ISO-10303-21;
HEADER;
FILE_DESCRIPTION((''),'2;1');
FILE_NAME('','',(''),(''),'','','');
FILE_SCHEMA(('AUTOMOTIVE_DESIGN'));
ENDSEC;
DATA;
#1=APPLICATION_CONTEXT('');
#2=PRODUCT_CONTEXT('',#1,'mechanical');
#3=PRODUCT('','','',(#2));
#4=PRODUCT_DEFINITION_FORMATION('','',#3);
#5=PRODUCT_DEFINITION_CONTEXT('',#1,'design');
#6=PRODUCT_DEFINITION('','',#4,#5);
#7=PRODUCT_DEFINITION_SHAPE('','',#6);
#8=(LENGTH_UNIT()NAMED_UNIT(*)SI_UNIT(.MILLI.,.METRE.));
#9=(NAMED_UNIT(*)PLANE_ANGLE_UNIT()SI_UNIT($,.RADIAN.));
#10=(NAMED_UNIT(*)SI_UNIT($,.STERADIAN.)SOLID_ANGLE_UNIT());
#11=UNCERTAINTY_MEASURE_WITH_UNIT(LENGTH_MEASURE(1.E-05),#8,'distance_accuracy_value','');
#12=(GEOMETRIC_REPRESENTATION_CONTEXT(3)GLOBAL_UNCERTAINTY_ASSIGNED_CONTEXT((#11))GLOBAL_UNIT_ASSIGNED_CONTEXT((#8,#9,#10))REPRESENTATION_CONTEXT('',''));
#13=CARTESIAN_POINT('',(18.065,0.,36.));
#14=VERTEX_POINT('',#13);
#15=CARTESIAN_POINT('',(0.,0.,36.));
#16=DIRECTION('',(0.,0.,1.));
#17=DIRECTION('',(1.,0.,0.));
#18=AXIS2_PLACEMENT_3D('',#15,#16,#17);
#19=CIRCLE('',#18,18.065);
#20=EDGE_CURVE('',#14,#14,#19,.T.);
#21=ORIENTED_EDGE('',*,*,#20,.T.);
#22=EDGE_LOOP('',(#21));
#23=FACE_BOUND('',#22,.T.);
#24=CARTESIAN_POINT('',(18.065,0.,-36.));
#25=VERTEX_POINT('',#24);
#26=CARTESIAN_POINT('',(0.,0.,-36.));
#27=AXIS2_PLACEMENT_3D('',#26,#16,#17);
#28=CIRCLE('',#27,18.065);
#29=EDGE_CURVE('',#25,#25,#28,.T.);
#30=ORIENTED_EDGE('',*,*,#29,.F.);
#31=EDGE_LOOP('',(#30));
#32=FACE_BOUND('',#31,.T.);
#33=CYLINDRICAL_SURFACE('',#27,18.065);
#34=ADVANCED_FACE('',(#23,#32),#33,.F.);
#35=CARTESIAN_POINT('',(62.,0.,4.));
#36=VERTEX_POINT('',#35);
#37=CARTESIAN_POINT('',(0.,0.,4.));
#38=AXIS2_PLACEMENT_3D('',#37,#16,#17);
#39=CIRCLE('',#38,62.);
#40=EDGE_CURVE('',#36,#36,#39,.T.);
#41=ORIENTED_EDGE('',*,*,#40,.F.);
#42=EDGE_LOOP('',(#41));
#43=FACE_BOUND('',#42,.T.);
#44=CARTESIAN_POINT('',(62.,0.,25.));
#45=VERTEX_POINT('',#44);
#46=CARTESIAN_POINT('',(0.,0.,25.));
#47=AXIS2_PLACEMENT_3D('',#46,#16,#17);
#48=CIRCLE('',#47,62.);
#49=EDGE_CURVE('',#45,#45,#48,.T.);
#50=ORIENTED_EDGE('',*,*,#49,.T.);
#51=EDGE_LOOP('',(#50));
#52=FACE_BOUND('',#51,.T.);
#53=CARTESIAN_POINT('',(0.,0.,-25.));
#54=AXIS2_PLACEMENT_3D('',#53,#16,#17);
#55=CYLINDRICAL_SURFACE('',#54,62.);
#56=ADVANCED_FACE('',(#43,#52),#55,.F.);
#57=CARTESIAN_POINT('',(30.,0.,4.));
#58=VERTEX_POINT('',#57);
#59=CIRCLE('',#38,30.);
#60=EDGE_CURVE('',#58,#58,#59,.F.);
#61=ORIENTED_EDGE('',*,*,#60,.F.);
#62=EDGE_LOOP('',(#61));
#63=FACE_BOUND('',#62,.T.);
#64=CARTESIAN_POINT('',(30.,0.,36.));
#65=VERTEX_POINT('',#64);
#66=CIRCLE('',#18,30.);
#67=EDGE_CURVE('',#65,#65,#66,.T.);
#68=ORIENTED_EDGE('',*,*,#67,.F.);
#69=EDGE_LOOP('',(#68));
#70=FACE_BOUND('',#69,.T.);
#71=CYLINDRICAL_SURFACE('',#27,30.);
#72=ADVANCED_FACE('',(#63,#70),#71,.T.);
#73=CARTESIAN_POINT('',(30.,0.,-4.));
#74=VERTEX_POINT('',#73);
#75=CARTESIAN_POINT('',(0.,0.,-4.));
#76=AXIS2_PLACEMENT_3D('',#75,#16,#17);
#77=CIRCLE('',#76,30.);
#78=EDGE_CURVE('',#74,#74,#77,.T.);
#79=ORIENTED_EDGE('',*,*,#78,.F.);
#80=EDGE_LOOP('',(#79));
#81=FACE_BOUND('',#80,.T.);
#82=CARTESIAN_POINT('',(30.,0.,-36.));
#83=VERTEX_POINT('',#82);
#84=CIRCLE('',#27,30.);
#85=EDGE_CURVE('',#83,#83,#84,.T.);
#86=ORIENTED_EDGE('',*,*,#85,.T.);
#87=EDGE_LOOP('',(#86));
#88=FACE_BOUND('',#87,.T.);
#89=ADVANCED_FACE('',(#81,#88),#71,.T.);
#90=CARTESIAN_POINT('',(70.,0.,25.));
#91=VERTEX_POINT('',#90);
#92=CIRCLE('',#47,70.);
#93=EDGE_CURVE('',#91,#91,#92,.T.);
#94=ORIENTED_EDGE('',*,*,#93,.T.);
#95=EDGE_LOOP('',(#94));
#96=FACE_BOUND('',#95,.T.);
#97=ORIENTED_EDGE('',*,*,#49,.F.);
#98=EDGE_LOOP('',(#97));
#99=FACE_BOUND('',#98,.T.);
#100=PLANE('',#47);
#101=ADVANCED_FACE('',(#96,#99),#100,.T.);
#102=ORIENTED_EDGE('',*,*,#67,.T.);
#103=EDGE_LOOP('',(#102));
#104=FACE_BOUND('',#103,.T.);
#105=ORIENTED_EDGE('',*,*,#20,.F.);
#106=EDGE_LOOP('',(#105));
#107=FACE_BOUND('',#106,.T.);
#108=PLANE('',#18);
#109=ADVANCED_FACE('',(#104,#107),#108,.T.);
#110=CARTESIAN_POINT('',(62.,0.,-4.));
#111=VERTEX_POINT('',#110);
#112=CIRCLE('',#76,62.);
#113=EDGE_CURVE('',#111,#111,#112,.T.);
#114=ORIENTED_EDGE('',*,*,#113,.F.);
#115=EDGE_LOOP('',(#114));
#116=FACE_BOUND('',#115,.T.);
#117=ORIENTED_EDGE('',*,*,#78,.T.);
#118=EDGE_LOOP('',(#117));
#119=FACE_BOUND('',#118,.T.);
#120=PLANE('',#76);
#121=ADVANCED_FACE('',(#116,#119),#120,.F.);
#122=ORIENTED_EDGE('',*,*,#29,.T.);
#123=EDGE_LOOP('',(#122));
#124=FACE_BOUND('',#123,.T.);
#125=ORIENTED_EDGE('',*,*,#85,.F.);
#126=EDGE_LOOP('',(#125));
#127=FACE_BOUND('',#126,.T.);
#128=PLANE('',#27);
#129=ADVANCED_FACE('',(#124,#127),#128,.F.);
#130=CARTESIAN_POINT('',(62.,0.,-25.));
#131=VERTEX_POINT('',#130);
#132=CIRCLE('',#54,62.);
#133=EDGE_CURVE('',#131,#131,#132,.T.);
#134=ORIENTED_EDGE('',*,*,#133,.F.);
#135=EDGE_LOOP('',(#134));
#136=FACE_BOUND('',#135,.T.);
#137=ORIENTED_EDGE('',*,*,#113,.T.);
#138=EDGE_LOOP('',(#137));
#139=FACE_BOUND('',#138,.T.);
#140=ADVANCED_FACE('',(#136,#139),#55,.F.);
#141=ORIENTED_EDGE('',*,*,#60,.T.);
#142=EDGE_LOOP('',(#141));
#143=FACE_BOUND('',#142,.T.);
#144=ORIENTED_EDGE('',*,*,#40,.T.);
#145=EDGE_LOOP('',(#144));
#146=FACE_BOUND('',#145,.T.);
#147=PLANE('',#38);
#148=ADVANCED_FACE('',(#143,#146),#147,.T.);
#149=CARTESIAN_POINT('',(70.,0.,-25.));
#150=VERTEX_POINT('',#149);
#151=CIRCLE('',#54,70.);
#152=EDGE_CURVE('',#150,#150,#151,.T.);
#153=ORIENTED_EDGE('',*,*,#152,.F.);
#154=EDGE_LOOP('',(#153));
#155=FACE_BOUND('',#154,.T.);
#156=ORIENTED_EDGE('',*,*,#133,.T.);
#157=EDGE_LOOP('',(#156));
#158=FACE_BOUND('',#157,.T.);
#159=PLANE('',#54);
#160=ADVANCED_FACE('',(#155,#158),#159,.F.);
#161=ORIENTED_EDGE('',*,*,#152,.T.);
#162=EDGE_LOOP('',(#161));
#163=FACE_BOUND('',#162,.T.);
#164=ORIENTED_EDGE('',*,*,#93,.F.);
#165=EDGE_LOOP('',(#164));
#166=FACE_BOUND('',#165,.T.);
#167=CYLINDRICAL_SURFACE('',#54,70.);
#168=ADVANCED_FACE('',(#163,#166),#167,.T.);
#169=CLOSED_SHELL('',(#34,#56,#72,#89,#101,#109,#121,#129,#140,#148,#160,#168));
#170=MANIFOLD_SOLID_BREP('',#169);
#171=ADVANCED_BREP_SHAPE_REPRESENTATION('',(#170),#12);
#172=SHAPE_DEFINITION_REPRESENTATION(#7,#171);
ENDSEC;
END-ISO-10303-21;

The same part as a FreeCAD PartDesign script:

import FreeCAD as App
import Part
import Sketcher
Q = App.Units.Quantity

doc = App.newDocument("Part")
body = doc.addObject("PartDesign::Body", "Body")

# Sketch on XY plane
sketch1 = body.newObject("Sketcher::SketchObject", "Sketch")
sketch1.AttachmentSupport = (doc.getObject("XY_Plane"), [""])
sketch1.MapMode = "FlatFace"
sketch1.addGeometry([
    Part.Circle(App.Vector(0, 0, 0), App.Vector(0, 0, 1), 30),
    Part.Circle(App.Vector(0, 0, 0), App.Vector(0, 0, 1), 18.065),
], False)
sketch1.addConstraint([
    Sketcher.Constraint("Coincident", 0, 3, -1, 1),
    Sketcher.Constraint("Coincident", 1, 3, -1, 1),
    Sketcher.Constraint("Diameter", 0, Q("60 mm")),
    Sketcher.Constraint("Diameter", 1, Q("36.13 mm")),
])
pad1 = body.newObject("PartDesign::Pad", "Pad")
pad1.Profile = sketch1
pad1.Type = "TwoLengths"
pad1.Length = 36
pad1.Length2 = 36

# Sketch on XY plane
sketch2 = body.newObject("Sketcher::SketchObject", "Sketch001")
sketch2.AttachmentSupport = (doc.getObject("XY_Plane"), [""])
sketch2.MapMode = "FlatFace"
sketch2.addGeometry([
    Part.Circle(App.Vector(0, 0, 0), App.Vector(0, 0, 1), 62),
    Part.Circle(App.Vector(0, 0, 0), App.Vector(0, 0, 1), 30),
], False)
sketch2.addConstraint([
    Sketcher.Constraint("Coincident", 0, 3, -1, 1),
    Sketcher.Constraint("Coincident", 1, 3, -1, 1),
    Sketcher.Constraint("Diameter", 0, Q("124 mm")),
    Sketcher.Constraint("Diameter", 1, Q("60 mm")),
])
pad2 = body.newObject("PartDesign::Pad", "Pad001")
pad2.Profile = sketch2
pad2.Type = "TwoLengths"
pad2.Length = 4
pad2.Length2 = 4

# Sketch on XY plane
sketch3 = body.newObject("Sketcher::SketchObject", "Sketch002")
sketch3.AttachmentSupport = (doc.getObject("XY_Plane"), [""])
sketch3.MapMode = "FlatFace"
sketch3.addGeometry([
    Part.Circle(App.Vector(0, 0, 0), App.Vector(0, 0, 1), 70),
    Part.Circle(App.Vector(0, 0, 0), App.Vector(0, 0, 1), 62),
], False)
sketch3.addConstraint([
    Sketcher.Constraint("Coincident", 0, 3, -1, 1),
    Sketcher.Constraint("Coincident", 1, 3, -1, 1),
    Sketcher.Constraint("Diameter", 0, Q("140 mm")),
    Sketcher.Constraint("Diameter", 1, Q("124 mm")),
])
pad3 = body.newObject("PartDesign::Pad", "Pad002")
pad3.Profile = sketch3
pad3.Type = "TwoLengths"
pad3.Length = 25
pad3.Length2 = 25

doc.recompute()
